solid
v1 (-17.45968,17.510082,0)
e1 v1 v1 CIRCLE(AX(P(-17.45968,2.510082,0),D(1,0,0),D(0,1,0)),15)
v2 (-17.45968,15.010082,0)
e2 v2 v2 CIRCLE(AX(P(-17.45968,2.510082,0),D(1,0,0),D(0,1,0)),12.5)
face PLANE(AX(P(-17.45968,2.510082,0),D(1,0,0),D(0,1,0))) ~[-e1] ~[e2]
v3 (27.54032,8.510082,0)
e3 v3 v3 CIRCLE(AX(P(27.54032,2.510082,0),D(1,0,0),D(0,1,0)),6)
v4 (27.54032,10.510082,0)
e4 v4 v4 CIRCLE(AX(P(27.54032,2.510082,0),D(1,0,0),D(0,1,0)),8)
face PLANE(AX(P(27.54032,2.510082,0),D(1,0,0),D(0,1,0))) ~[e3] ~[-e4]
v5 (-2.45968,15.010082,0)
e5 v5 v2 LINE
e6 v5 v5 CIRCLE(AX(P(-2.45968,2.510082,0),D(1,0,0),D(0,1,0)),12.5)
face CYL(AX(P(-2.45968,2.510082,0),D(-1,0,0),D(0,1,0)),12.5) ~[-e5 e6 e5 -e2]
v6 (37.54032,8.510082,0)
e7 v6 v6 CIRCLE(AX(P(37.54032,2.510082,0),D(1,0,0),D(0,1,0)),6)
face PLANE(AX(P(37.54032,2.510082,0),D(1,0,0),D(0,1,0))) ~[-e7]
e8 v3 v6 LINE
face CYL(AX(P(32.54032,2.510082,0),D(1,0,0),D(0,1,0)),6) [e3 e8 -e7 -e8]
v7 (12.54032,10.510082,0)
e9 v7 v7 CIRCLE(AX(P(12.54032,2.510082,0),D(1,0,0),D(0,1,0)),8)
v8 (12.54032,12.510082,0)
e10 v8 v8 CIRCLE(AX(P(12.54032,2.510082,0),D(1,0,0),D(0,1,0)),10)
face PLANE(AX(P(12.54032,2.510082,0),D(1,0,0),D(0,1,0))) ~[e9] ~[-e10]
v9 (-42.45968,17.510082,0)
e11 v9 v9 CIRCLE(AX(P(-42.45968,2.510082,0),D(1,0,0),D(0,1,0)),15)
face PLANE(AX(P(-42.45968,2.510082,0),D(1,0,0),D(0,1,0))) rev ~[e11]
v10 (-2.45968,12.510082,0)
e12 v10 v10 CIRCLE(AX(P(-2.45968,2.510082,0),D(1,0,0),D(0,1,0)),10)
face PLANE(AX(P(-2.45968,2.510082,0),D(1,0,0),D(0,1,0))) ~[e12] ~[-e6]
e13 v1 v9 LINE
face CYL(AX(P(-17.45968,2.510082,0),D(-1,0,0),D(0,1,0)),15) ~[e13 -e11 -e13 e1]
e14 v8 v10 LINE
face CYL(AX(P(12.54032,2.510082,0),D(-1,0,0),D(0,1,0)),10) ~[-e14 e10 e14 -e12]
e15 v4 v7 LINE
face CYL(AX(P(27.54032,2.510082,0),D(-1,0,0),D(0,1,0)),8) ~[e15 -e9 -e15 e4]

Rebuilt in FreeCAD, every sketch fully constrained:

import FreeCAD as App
import Part
import Sketcher

V = App.Vector
Q = App.Units.Quantity

doc = App.newDocument("Part")
body = doc.addObject("PartDesign::Body", "Body")

# Sketch on XY plane
sketch1 = body.newObject("Sketcher::SketchObject", "Sketch")
sketch1.AttachmentSupport = (doc.getObject("XY_Plane"), [""])
sketch1.MapMode = "FlatFace"
sketch1.addGeometry([
    Part.LineSegment(V(37.5, 2.5, 0), V(37.5, 8.5, 0)),  # 0
    Part.LineSegment(V(37.5, 8.5, 0), V(27.5, 8.5, 0)),  # 1
    Part.LineSegment(V(27.5, 8.5, 0), V(27.5, 10.5, 0)),  # 2
    Part.LineSegment(V(27.5, 10.5, 0), V(12.5, 10.5, 0)),  # 3
    Part.LineSegment(V(12.5, 10.5, 0), V(12.5, 12.5, 0)),  # 4
    Part.LineSegment(V(12.5, 12.5, 0), V(-2.5, 12.5, 0)),  # 5
    Part.LineSegment(V(-2.5, 12.5, 0), V(-2.5, 15, 0)),  # 6
    Part.LineSegment(V(-2.5, 15, 0), V(-17.5, 15, 0)),  # 7
    Part.LineSegment(V(-17.5, 15, 0), V(-17.5, 17.5, 0)),  # 8
    Part.LineSegment(V(-17.5, 17.5, 0), V(-42.5, 17.5, 0)),  # 9
    Part.LineSegment(V(-42.5, 17.5, 0), V(-42.5, 2.5, 0)),  # 10
    Part.LineSegment(V(-42.5, 2.5, 0), V(37.5, 2.5, 0)),  # 11
], False)
sketch1.addGeometry(Part.LineSegment(V(-42.5, 2.5, 0), V(37.5, 2.5, 0)), True)  # axis
sketch1.addConstraint([
    Sketcher.Constraint("Coincident", 0, 2, 1, 1),
    Sketcher.Constraint("Coincident", 1, 2, 2, 1),
    Sketcher.Constraint("Coincident", 2, 2, 3, 1),
    Sketcher.Constraint("Coincident", 3, 2, 4, 1),
    Sketcher.Constraint("Coincident", 4, 2, 5, 1),
    Sketcher.Constraint("Coincident", 5, 2, 6, 1),
    Sketcher.Constraint("Coincident", 6, 2, 7, 1),
    Sketcher.Constraint("Coincident", 7, 2, 8, 1),
    Sketcher.Constraint("Coincident", 8, 2, 9, 1),
    Sketcher.Constraint("Coincident", 9, 2, 10, 1),
    Sketcher.Constraint("Coincident", 10, 2, 11, 1),
    Sketcher.Constraint("Coincident", 11, 2, 0, 1),
    Sketcher.Constraint("Vertical", 0),
    Sketcher.Constraint("Horizontal", 1),
    Sketcher.Constraint("Vertical", 2),
    Sketcher.Constraint("Horizontal", 3),
    Sketcher.Constraint("Vertical", 4),
    Sketcher.Constraint("Horizontal", 5),
    Sketcher.Constraint("Vertical", 6),
    Sketcher.Constraint("Horizontal", 7),
    Sketcher.Constraint("Vertical", 8),
    Sketcher.Constraint("Horizontal", 9),
    Sketcher.Constraint("Vertical", 10),
    Sketcher.Constraint("Horizontal", 11),
    Sketcher.Constraint("Horizontal", 12),
    Sketcher.Constraint("Coincident", 12, 1, 10, 2),
    Sketcher.Constraint("Vertical", 0, 2, 12, 2),
    Sketcher.Constraint("Equal", 3, 5),
    Sketcher.Constraint("Equal", 5, 7),
    Sketcher.Constraint("Equal", 2, 4),
    Sketcher.Constraint("Equal", 6, 8),
    Sketcher.Constraint("Equal", 7, 10),
    Sketcher.Constraint("DistanceX", 1, 2, 1, 1, Q("10 mm")),
    Sketcher.Constraint("DistanceX", 3, 2, 3, 1, Q("15 mm")),
    Sketcher.Constraint("DistanceX", 9, 2, 9, 1, Q("25 mm")),
    Sketcher.Constraint("DistanceY", 0, 1, 0, 2, Q("6 mm")),
    Sketcher.Constraint("DistanceY", 2, 1, 2, 2, Q("2 mm")),
    Sketcher.Constraint("DistanceX", -1, 1, 0, 2, Q("37.54032 mm")),
    Sketcher.Constraint("DistanceY", -1, 1, 0, 2, Q("8.510082 mm")),
])
revolution = body.newObject("PartDesign::Revolution", "Revolution")
revolution.Profile = sketch1
revolution.ReferenceAxis = (sketch1, ["Axis0"])
revolution.Angle = 360

doc.recompute()
